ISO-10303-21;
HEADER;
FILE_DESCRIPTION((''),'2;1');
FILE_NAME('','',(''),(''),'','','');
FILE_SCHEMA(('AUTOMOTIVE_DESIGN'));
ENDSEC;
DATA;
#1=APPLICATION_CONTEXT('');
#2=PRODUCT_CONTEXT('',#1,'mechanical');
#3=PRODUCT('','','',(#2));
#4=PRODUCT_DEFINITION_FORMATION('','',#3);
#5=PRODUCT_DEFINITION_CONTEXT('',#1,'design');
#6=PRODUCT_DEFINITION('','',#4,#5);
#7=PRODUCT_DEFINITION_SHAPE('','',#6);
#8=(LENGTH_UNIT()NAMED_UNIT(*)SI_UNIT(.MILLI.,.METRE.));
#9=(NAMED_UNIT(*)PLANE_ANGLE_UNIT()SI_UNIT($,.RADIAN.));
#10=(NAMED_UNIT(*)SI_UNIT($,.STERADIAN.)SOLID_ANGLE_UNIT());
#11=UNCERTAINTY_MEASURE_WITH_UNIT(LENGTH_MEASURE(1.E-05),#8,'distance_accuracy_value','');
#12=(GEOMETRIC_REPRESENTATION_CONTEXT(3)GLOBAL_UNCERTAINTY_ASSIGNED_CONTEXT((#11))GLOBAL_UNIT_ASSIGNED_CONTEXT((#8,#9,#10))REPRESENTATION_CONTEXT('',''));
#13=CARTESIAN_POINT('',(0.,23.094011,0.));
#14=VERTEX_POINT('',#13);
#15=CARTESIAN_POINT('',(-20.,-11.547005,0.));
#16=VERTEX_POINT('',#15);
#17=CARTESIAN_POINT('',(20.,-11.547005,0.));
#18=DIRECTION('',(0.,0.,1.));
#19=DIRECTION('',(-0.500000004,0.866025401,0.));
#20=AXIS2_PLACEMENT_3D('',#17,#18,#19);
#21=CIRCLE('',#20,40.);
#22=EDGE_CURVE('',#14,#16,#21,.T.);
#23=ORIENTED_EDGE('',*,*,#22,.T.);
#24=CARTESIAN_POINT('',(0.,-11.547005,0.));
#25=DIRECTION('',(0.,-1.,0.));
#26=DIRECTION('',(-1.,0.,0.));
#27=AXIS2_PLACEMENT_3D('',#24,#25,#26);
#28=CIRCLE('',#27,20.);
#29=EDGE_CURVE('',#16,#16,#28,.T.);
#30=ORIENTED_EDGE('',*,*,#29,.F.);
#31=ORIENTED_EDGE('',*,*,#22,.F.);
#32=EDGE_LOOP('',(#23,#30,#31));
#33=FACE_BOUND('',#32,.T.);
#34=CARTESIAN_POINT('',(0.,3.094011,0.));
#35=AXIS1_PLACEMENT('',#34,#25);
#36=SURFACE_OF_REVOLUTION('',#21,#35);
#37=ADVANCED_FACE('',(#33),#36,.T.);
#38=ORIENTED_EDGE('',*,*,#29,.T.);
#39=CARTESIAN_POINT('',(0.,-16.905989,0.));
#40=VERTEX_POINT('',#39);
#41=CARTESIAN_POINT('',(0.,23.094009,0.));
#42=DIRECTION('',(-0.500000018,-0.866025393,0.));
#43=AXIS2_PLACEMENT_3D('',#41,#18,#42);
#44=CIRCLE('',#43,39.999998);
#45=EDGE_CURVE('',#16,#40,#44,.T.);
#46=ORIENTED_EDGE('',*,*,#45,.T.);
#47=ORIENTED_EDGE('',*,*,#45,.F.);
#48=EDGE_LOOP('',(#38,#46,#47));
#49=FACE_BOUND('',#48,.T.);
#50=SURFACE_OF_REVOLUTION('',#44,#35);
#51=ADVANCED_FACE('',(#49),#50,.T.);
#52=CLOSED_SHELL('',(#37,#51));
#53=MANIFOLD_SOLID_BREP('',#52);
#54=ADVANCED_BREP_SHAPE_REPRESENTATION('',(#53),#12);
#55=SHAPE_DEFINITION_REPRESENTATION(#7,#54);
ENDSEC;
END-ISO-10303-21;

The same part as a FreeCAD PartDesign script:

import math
import FreeCAD as App
import Part
import Sketcher

doc = App.newDocument("Part")
body = doc.addObject("PartDesign::Body", "Body")

sketch1 = doc.addObject("Sketcher::SketchObject", "Sketch")
body.addObject(sketch1)
sketch1.AttachmentSupport = (doc.XY_Plane, [""])
sketch1.MapMode = "FlatFace"
sketch1.addGeometry(Part.LineSegment(App.Vector(0, -17, 0), App.Vector(0, 23, 0)), False)
sketch1.addGeometry(Part.ArcOfCircle(Part.Circle(App.Vector(20, -12, 0), App.Vector(0, 0, 1), 40), math.radians(120), math.radians(180)), False)
sketch1.addGeometry(Part.ArcOfCircle(Part.Circle(App.Vector(0, 23, 0), App.Vector(0, 0, 1), 40), math.radians(-120), math.radians(-90)), False)
sketch1.addConstraint(Sketcher.Constraint("Coincident", 0, 2, 1, 1))
sketch1.addConstraint(Sketcher.Constraint("Coincident", 1, 2, 2, 1))
sketch1.addConstraint(Sketcher.Constraint("Coincident", 2, 2, 0, 1))
sketch1.addConstraint(Sketcher.Constraint("Vertical", 0))
sketch1.addConstraint(Sketcher.Constraint("Coincident", 0, 2, 2, 3))
sketch1.addConstraint(Sketcher.Constraint("PointOnObject", 2, 3, -2))
sketch1.addConstraint(Sketcher.Constraint("Radius", 1, 40.0))
sketch1.addConstraint(Sketcher.Constraint("Radius", 2, 39.999998))
sketch1.addConstraint(Sketcher.Constraint("DistanceX", -1, 1, 1, 3, 20.0))
sketch1.addConstraint(Sketcher.Constraint("DistanceY", -1, 1, 2, 3, 23.094009))
revolution = doc.addObject("PartDesign::Revolution", "Revolution")
body.addObject(revolution)
revolution.Profile = sketch1
revolution.ReferenceAxis = (sketch1, ["V_Axis"])
revolution.Angle = 360

doc.recompute()
